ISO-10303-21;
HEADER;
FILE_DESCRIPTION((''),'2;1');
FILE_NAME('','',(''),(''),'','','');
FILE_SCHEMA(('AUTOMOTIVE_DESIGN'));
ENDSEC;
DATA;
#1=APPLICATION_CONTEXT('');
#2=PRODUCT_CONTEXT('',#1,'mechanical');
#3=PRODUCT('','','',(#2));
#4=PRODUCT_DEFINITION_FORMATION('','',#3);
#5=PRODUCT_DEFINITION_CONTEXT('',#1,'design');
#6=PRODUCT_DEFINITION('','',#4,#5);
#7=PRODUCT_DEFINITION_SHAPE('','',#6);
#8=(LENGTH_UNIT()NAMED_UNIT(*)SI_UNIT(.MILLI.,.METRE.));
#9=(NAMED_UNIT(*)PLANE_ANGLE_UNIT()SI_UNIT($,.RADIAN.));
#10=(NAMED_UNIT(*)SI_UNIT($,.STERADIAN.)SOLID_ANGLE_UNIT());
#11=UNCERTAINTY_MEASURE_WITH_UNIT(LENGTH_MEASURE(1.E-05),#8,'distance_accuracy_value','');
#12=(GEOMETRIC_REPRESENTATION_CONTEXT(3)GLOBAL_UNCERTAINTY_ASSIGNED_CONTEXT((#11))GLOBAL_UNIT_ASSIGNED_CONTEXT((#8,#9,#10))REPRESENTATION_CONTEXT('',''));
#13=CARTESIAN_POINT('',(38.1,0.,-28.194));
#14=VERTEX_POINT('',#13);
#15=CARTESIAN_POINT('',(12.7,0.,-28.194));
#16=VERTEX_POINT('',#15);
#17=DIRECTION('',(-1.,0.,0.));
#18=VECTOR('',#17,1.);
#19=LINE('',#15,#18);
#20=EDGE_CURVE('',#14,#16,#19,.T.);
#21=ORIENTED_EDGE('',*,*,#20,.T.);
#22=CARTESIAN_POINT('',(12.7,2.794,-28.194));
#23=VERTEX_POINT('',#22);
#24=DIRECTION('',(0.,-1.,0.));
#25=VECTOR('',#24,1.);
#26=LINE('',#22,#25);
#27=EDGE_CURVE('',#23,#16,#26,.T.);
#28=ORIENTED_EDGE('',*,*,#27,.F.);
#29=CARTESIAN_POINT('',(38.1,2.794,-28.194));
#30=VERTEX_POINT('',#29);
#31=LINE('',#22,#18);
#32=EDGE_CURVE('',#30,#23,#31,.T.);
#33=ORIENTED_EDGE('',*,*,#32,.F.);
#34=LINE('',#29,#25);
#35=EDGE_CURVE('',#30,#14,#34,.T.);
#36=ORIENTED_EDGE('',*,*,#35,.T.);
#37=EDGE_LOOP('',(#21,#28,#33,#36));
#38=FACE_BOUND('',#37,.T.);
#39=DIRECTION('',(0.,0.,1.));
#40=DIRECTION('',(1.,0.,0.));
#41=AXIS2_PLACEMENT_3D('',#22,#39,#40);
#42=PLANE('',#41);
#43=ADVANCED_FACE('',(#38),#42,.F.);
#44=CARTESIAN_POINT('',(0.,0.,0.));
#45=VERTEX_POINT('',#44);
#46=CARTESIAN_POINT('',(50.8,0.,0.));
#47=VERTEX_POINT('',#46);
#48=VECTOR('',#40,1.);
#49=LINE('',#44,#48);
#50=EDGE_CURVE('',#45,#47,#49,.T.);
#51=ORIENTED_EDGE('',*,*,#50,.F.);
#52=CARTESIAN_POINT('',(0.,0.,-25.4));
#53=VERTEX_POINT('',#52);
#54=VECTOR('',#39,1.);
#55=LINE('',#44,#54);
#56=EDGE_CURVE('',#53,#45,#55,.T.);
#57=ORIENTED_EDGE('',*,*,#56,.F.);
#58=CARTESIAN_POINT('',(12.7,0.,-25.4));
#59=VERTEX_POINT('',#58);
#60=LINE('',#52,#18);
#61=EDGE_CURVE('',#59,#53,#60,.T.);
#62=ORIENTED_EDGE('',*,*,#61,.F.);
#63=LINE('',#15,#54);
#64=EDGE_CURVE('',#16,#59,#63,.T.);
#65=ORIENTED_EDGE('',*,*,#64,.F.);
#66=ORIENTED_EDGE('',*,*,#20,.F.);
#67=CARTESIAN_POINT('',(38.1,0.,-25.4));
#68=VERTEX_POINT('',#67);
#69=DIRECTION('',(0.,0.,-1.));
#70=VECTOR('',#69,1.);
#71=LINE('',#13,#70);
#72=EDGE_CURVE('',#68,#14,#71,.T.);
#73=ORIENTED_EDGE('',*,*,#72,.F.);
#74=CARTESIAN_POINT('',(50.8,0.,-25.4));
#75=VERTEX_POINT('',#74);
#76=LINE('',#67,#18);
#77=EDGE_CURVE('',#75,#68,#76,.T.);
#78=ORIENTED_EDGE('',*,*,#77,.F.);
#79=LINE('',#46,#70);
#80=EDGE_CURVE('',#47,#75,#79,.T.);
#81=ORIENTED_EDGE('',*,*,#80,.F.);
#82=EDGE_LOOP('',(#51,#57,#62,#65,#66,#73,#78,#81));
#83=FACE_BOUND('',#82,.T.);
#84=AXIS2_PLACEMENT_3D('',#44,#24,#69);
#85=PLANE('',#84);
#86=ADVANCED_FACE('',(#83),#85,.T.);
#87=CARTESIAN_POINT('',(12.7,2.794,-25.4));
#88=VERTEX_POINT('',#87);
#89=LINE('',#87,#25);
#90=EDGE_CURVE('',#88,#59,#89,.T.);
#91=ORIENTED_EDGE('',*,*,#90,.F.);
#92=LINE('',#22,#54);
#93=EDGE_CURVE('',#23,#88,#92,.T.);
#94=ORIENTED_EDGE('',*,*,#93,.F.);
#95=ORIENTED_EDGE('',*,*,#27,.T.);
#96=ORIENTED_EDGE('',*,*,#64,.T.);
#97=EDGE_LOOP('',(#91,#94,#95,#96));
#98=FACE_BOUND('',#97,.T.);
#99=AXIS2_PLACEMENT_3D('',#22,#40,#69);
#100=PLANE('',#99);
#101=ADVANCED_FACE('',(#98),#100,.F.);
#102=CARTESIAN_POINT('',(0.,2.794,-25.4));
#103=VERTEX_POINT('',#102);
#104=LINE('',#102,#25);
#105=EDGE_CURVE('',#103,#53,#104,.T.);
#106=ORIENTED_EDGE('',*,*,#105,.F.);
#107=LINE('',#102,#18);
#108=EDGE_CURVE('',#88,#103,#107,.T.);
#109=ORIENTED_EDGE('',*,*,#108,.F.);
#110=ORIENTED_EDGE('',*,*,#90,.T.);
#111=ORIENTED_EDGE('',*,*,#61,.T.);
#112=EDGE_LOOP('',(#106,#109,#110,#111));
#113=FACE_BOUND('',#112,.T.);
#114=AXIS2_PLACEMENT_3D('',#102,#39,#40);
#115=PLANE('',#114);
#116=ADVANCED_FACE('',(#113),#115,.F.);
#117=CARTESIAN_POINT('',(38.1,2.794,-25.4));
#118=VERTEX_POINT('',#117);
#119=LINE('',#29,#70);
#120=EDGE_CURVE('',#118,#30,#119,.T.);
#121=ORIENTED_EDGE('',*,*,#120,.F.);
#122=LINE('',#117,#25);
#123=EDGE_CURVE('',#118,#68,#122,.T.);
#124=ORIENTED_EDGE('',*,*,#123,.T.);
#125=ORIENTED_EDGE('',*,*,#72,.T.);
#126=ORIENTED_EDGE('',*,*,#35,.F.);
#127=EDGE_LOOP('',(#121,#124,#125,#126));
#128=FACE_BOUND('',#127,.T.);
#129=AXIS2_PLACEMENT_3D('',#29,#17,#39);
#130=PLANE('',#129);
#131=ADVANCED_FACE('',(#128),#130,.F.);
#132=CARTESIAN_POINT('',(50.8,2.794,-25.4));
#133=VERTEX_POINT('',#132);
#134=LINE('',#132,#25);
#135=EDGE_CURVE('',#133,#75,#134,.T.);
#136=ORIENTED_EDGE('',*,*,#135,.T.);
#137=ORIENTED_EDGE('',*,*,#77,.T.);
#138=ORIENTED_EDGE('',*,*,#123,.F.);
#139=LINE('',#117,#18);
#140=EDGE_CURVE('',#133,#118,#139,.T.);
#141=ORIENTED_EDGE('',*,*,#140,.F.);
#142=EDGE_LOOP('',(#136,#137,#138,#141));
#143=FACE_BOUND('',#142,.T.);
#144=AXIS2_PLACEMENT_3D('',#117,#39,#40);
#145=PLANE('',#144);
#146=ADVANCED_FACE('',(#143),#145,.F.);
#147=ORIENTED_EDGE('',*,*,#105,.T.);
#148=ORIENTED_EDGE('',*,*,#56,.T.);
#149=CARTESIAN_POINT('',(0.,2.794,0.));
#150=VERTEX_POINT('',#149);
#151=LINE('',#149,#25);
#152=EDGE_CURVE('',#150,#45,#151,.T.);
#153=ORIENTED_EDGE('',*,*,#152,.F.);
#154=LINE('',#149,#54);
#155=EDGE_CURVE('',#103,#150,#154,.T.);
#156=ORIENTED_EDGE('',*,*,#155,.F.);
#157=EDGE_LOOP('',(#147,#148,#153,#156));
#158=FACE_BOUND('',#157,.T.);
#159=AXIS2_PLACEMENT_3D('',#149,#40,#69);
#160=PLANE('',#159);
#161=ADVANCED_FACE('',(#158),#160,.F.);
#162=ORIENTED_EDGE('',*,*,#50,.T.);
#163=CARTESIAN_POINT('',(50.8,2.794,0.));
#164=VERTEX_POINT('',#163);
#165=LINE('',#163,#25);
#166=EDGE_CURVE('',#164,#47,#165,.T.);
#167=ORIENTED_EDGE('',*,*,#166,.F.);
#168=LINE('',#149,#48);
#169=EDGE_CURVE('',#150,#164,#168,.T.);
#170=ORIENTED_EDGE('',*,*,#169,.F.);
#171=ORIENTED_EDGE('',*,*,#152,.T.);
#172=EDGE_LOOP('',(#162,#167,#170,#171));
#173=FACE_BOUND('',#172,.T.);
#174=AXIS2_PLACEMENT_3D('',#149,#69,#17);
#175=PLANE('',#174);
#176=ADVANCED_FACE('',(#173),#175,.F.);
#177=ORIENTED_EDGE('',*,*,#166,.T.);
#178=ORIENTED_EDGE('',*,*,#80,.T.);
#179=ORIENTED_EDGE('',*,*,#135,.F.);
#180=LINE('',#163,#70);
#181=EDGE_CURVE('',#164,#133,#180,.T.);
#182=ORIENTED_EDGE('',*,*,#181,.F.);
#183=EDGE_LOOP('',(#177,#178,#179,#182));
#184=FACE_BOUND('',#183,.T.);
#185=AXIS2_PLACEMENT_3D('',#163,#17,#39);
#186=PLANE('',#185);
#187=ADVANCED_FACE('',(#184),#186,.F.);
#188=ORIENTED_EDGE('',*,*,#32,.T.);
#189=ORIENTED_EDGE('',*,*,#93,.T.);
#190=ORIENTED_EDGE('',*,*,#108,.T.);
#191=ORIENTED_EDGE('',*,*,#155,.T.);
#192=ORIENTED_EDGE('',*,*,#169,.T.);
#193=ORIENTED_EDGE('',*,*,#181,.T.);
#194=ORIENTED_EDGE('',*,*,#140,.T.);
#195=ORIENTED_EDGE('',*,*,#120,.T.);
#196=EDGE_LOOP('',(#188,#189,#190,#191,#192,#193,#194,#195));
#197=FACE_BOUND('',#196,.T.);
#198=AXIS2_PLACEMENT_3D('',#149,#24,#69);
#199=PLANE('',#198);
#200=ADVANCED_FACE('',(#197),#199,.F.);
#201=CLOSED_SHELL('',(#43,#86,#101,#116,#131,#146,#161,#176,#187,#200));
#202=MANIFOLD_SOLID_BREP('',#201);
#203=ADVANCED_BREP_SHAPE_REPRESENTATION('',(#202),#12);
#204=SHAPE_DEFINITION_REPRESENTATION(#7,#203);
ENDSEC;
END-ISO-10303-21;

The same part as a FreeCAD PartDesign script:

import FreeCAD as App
import Part
import Sketcher

V = App.Vector
Q = App.Units.Quantity

doc = App.newDocument("Part")
params = doc.addObject("Spreadsheet::Sheet", "Params")
for row, (alias, value) in enumerate([
    ("sketch1_width", "1 in"),
    ("sketch1_width2", "2 in"),
    ("sketch1_height", "0.11 in"),
    ("pad1_length", "0.11 in"),
], start=1):
    params.set(f"A{row}", alias)
    params.set(f"B{row}", "=" + value)
    params.setAlias(f"B{row}", alias)

body = doc.addObject("PartDesign::Body", "Body")

# Sketch on XZ plane
sketch1 = doc.addObject("Sketcher::SketchObject", "Sketch")
body.addObject(sketch1)
sketch1.AttachmentSupport = (doc.XZ_Plane, [""])
sketch1.MapMode = "FlatFace"
sketch1.addGeometry([
    Part.LineSegment(V(50.8, -25.4, 0), V(38.1, -25.4, 0)),  # 0
    Part.LineSegment(V(38.1, -25.4, 0), V(38.1, -28.2, 0)),  # 1
    Part.LineSegment(V(38.1, -28.2, 0), V(12.7, -28.2, 0)),  # 2
    Part.LineSegment(V(12.7, -28.2, 0), V(12.7, -25.4, 0)),  # 3
    Part.LineSegment(V(12.7, -25.4, 0), V(0, -25.4, 0)),  # 4
    Part.LineSegment(V(0, -25.4, 0), V(0, 0, 0)),  # 5
    Part.LineSegment(V(0, 0, 0), V(50.8, 0, 0)),  # 6
    Part.LineSegment(V(50.8, 0, 0), V(50.8, -25.4, 0)),  # 7
], False)
sketch1.addConstraint([
    Sketcher.Constraint("Coincident", 0, 2, 1, 1),
    Sketcher.Constraint("Coincident", 1, 2, 2, 1),
    Sketcher.Constraint("Coincident", 2, 2, 3, 1),
    Sketcher.Constraint("Coincident", 3, 2, 4, 1),
    Sketcher.Constraint("Coincident", 4, 2, 5, 1),
    Sketcher.Constraint("Coincident", 5, 2, 6, 1),
    Sketcher.Constraint("Coincident", 6, 2, 7, 1),
    Sketcher.Constraint("Coincident", 7, 2, 0, 1),
    Sketcher.Constraint("Horizontal", 0),
    Sketcher.Constraint("Vertical", 1),
    Sketcher.Constraint("Horizontal", 2),
    Sketcher.Constraint("Vertical", 3),
    Sketcher.Constraint("Horizontal", 4),
    Sketcher.Constraint("Vertical", 5),
    Sketcher.Constraint("Horizontal", 6),
    Sketcher.Constraint("Vertical", 7),
    Sketcher.Constraint("Coincident", 5, 2, -1, 1),
    Sketcher.Constraint("Horizontal", 0, 2, 3, 2),
    Sketcher.Constraint("Equal", 0, 4),
    Sketcher.Constraint("Equal", 2, 5),
    Sketcher.Constraint("DistanceX", 2, 2, 2, 1, Q("1 in")),
    Sketcher.Constraint("DistanceX", 6, 1, 6, 2, Q("2 in")),
    Sketcher.Constraint("DistanceY", 1, 2, 1, 1, Q("0.11 in")),
])
sketch1.setExpression("Constraints[20]", "Params.sketch1_width")
sketch1.setExpression("Constraints[21]", "Params.sketch1_width2")
sketch1.setExpression("Constraints[22]", "Params.sketch1_height")
pad1 = doc.addObject("PartDesign::Pad", "Pad")
body.addObject(pad1)
pad1.Profile = sketch1
pad1.setExpression("Length", "Params.pad1_length")
pad1.Reversed = True

doc.recompute()
